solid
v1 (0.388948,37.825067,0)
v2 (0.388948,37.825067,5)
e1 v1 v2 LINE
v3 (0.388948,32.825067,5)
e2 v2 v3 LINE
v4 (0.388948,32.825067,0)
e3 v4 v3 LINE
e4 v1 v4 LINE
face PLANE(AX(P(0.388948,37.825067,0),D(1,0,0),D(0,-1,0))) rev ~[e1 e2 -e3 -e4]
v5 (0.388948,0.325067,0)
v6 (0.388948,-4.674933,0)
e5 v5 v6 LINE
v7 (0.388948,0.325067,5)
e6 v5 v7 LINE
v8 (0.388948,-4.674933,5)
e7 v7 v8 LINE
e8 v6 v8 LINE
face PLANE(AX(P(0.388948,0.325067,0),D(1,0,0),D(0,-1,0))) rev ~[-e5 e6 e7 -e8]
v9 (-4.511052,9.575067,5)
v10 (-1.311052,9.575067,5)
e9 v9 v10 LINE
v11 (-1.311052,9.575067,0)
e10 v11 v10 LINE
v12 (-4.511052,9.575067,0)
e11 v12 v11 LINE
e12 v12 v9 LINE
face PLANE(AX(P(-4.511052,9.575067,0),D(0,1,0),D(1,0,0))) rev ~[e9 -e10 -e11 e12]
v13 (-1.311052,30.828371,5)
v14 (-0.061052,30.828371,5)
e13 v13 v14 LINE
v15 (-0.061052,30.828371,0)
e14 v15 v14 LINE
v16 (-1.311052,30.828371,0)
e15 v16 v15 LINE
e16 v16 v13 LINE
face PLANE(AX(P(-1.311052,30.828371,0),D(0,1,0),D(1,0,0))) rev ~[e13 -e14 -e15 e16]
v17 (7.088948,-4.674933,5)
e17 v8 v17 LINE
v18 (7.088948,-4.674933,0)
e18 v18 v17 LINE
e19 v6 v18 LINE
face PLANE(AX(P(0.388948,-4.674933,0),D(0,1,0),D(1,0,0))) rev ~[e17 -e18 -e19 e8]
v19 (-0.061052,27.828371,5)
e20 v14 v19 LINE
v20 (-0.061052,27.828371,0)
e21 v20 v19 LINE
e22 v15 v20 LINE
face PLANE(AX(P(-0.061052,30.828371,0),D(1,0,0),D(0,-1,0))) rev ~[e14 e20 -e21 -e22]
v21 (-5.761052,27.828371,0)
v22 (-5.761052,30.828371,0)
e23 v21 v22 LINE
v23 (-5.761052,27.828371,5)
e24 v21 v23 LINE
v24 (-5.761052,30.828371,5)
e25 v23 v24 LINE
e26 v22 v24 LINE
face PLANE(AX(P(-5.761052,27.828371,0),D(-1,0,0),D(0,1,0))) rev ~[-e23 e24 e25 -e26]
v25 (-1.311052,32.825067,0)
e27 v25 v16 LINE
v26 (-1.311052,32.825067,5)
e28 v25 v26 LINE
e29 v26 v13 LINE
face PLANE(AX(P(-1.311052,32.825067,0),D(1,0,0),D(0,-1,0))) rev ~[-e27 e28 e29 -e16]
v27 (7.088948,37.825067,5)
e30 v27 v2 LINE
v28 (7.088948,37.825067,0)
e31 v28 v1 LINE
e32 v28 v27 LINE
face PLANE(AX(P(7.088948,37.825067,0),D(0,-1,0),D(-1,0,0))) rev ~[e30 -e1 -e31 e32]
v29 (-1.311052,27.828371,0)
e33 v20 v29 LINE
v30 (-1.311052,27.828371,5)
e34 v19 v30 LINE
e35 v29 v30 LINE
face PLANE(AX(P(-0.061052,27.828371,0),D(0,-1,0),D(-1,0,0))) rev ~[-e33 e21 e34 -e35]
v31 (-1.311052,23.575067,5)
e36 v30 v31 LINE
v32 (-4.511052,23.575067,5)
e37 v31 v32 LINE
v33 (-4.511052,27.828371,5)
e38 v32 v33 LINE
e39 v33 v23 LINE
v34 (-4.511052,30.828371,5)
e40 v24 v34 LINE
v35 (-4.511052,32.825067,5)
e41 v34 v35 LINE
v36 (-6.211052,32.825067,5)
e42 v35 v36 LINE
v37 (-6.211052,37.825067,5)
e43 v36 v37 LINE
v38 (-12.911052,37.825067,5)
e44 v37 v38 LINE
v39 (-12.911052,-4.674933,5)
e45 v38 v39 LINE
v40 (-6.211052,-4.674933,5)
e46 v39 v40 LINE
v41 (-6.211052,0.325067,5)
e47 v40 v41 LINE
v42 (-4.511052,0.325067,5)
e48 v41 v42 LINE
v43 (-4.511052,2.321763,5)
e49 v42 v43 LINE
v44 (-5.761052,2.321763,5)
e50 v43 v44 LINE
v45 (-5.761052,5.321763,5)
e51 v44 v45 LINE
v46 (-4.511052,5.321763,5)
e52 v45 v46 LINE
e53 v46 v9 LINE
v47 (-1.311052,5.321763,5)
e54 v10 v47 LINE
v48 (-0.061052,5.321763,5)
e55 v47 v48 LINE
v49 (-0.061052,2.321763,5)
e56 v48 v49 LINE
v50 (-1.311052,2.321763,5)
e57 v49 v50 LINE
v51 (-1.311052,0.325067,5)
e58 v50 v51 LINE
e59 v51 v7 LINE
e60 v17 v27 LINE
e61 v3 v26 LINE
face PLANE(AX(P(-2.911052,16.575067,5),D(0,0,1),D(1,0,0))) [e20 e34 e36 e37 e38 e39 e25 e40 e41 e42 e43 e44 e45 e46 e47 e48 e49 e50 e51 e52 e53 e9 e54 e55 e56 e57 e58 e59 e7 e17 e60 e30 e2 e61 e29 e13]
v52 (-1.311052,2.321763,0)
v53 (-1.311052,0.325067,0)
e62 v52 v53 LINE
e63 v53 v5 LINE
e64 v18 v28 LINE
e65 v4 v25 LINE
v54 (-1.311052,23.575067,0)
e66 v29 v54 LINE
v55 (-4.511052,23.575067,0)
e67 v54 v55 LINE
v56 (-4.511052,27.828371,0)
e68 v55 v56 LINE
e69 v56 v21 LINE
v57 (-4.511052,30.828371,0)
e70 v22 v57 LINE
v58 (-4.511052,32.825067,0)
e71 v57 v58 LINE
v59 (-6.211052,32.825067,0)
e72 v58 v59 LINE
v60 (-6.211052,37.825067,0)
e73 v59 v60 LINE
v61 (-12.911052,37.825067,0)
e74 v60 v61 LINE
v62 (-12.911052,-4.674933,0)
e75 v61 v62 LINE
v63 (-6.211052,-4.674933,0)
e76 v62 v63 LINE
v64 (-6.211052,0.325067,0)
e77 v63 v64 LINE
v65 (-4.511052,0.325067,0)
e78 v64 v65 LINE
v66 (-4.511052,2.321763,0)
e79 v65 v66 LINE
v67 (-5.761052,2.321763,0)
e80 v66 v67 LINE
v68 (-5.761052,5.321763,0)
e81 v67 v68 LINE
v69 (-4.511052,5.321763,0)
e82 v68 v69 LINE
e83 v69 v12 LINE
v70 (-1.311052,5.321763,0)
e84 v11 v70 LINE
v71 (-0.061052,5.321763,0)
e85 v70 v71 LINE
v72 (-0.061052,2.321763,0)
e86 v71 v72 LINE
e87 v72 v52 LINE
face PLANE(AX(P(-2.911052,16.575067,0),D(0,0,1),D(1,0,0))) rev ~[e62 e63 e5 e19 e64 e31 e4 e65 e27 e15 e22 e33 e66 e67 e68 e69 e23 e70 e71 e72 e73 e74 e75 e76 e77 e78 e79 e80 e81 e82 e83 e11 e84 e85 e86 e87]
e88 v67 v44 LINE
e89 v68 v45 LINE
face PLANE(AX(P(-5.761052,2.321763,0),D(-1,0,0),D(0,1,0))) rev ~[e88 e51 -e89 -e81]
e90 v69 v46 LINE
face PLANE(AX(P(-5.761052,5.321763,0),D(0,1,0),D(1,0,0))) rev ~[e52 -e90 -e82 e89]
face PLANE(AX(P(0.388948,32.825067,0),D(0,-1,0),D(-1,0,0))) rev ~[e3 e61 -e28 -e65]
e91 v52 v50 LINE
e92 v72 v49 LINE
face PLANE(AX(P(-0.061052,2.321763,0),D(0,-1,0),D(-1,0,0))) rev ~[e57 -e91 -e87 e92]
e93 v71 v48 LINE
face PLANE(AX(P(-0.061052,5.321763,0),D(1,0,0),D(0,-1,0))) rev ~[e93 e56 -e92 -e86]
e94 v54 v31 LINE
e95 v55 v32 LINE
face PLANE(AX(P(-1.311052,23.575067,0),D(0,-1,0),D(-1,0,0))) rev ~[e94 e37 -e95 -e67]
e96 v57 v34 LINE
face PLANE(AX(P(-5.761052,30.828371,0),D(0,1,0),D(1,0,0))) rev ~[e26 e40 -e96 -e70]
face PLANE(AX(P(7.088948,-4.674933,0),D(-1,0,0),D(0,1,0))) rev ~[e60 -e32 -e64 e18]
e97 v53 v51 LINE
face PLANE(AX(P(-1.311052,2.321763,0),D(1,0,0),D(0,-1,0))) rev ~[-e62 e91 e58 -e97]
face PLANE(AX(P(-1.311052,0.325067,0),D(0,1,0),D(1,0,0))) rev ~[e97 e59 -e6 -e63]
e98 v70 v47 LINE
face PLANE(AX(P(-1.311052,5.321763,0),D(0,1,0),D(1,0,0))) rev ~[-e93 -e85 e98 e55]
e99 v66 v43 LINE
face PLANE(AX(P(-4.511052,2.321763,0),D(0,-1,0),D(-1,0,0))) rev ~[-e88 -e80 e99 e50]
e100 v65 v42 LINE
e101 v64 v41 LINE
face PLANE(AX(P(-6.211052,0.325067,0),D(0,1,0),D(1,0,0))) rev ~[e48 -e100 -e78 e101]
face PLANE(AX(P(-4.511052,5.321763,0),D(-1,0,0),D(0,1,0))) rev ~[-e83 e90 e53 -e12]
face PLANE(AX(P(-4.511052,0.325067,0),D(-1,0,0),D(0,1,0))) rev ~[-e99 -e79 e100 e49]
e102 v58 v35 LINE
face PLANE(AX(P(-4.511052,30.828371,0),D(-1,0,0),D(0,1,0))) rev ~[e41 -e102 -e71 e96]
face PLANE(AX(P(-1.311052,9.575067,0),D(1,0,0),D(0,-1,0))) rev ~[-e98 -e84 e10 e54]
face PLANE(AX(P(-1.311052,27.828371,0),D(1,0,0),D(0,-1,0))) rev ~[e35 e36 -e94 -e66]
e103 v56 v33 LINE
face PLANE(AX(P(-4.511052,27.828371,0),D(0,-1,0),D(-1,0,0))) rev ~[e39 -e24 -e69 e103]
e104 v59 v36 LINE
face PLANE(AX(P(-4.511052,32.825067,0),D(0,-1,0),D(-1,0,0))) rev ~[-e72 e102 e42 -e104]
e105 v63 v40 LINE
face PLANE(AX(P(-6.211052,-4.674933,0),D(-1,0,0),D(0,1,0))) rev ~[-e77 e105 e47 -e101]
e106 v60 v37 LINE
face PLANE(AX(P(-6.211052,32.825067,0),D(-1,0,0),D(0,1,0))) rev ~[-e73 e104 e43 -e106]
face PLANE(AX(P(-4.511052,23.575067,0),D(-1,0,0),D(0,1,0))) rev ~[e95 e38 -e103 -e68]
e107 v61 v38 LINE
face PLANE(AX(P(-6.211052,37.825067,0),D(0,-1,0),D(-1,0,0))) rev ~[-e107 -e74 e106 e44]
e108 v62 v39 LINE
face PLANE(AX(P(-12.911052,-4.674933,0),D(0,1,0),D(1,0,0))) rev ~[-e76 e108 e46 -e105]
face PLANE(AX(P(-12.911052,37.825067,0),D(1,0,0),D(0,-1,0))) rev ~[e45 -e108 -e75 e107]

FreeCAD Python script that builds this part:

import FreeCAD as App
import Part
import Sketcher
from FreeCAD import Vector
Q = App.Units.Quantity


def add_polygon(sketch, points):
    """Adds a closed chain of lines whose ends are joined by coincident constraints."""
    first, n = sketch.GeometryCount, len(points)
    for a, b in zip(points, points[1:] + points[:1]):
        sketch.addGeometry(Part.LineSegment(App.Vector(*a, 0), App.Vector(*b, 0)), False)
    for i in range(n):
        sketch.addConstraint(Sketcher.Constraint("Coincident", first + i, 2, first + (i + 1) % n, 1))

doc = App.newDocument("Part")
body = doc.addObject("PartDesign::Body", "Body")

sketch1 = doc.addObject("Sketcher::SketchObject", "Sketch")
body.addObject(sketch1)
sketch1.AttachmentSupport = (doc.XY_Plane, [""])
sketch1.MapMode = "FlatFace"
add_polygon(sketch1, [(-12.9, 37.8), (-12.9, -4.7), (-6.2, -4.7), (-6.2, 0.3), (-4.5, 0.3), (-4.5, 2.3), (-5.8, 2.3), (-5.8, 5.3), (-4.5, 5.3), (-4.5, 9.6), (-1.3, 9.6), (-1.3, 5.3), (-0.1, 5.3), (-0.1, 2.3), (-1.3, 2.3), (-1.3, 0.3), (0.4, 0.3), (0.4, -4.7), (7.1, -4.7), (7.1, 37.8), (0.4, 37.8), (0.4, 32.8), (-1.3, 32.8), (-1.3, 30.8), (-0.1, 30.8), (-0.1, 27.8), (-1.3, 27.8), (-1.3, 23.6), (-4.5, 23.6), (-4.5, 27.8), (-5.8, 27.8), (-5.8, 30.8), (-4.5, 30.8), (-4.5, 32.8), (-6.2, 32.8), (-6.2, 37.8)])
sketch1.addConstraint([
    Sketcher.Constraint("Vertical", 0),
    Sketcher.Constraint("Horizontal", 1),
    Sketcher.Constraint("Vertical", 2),
    Sketcher.Constraint("Horizontal", 3),
    Sketcher.Constraint("Vertical", 4),
    Sketcher.Constraint("Horizontal", 5),
    Sketcher.Constraint("Vertical", 6),
    Sketcher.Constraint("Horizontal", 7),
    Sketcher.Constraint("Vertical", 8),
    Sketcher.Constraint("Horizontal", 9),
    Sketcher.Constraint("Vertical", 10),
    Sketcher.Constraint("Horizontal", 11),
    Sketcher.Constraint("Vertical", 12),
    Sketcher.Constraint("Horizontal", 13),
    Sketcher.Constraint("Vertical", 14),
    Sketcher.Constraint("Horizontal", 15),
    Sketcher.Constraint("Vertical", 16),
    Sketcher.Constraint("Horizontal", 17),
    Sketcher.Constraint("Vertical", 18),
    Sketcher.Constraint("Horizontal", 19),
    Sketcher.Constraint("Vertical", 20),
    Sketcher.Constraint("Horizontal", 21),
    Sketcher.Constraint("Vertical", 22),
    Sketcher.Constraint("Horizontal", 23),
    Sketcher.Constraint("Vertical", 24),
    Sketcher.Constraint("Horizontal", 25),
    Sketcher.Constraint("Vertical", 26),
    Sketcher.Constraint("Horizontal", 27),
    Sketcher.Constraint("Vertical", 28),
    Sketcher.Constraint("Horizontal", 29),
    Sketcher.Constraint("Vertical", 30),
    Sketcher.Constraint("Horizontal", 31),
    Sketcher.Constraint("Vertical", 32),
    Sketcher.Constraint("Horizontal", 33),
    Sketcher.Constraint("Vertical", 34),
    Sketcher.Constraint("Horizontal", 35),
    Sketcher.Constraint("Horizontal", 7, 2, 10, 2),
    Sketcher.Constraint("Horizontal", 5, 2, 12, 2),
    Sketcher.Constraint("Horizontal", 3, 2, 14, 2),
    Sketcher.Constraint("Horizontal", 1, 2, 16, 2),
    Sketcher.Constraint("Horizontal", 25, 2, 28, 2),
    Sketcher.Constraint("Horizontal", 23, 2, 30, 2),
    Sketcher.Constraint("Horizontal", 21, 2, 32, 2),
    Sketcher.Constraint("Horizontal", 19, 2, 34, 2),
    Sketcher.Constraint("Vertical", 4, 2, 7, 2),
    Sketcher.Constraint("Vertical", 10, 2, 13, 2),
    Sketcher.Constraint("Vertical", 16, 2, 19, 2),
    Sketcher.Constraint("Vertical", 14, 2, 21, 2),
    Sketcher.Constraint("Vertical", 12, 2, 23, 2),
    Sketcher.Constraint("Vertical", 22, 2, 25, 2),
    Sketcher.Constraint("Vertical", 8, 2, 27, 2),
    Sketcher.Constraint("Vertical", 6, 2, 29, 2),
    Sketcher.Constraint("Vertical", 28, 2, 31, 2),
    Sketcher.Constraint("Vertical", 2, 2, 33, 2),
    Sketcher.Constraint("Equal", 7, 11),
    Sketcher.Constraint("Equal", 3, 15),
    Sketcher.Constraint("Equal", 1, 17),
    Sketcher.Constraint("Equal", 16, 20),
    Sketcher.Constraint("Equal", 14, 22),
    Sketcher.Constraint("Equal", 12, 24),
    Sketcher.Constraint("Equal", 10, 26),
    Sketcher.Constraint("DistanceY", 2, 1, 2, 2, Q("5 mm")),
    Sketcher.Constraint("DistanceY", 6, 1, 6, 2, Q("3 mm")),
    Sketcher.Constraint("DistanceX", 1, 1, 1, 2, Q("6.7 mm")),
    Sketcher.Constraint("DistanceX", 3, 1, 3, 2, Q("1.7 mm")),
    Sketcher.Constraint("DistanceX", 9, 1, 9, 2, Q("3.2 mm")),
    Sketcher.Constraint("DistanceY", 0, 2, 0, 1, Q("42.5 mm")),
    Sketcher.Constraint("DistanceX", 5, 2, 5, 1, Q("1.25 mm")),
    Sketcher.Constraint("DistanceY", 3, 2, 8, 2, Q("9.25 mm")),
    Sketcher.Constraint("DistanceY", 4, 1, 4, 2, Q("1.996696 mm")),
    Sketcher.Constraint("DistanceX", 0, 2, -1, 1, Q("12.911052 mm")),
    Sketcher.Constraint("DistanceY", -1, 1, 22, 2, Q("30.828371 mm")),
])
pad1 = doc.addObject("PartDesign::Pad", "Pad")
body.addObject(pad1)
pad1.Profile = sketch1
pad1.Length = 5

doc.recompute()
